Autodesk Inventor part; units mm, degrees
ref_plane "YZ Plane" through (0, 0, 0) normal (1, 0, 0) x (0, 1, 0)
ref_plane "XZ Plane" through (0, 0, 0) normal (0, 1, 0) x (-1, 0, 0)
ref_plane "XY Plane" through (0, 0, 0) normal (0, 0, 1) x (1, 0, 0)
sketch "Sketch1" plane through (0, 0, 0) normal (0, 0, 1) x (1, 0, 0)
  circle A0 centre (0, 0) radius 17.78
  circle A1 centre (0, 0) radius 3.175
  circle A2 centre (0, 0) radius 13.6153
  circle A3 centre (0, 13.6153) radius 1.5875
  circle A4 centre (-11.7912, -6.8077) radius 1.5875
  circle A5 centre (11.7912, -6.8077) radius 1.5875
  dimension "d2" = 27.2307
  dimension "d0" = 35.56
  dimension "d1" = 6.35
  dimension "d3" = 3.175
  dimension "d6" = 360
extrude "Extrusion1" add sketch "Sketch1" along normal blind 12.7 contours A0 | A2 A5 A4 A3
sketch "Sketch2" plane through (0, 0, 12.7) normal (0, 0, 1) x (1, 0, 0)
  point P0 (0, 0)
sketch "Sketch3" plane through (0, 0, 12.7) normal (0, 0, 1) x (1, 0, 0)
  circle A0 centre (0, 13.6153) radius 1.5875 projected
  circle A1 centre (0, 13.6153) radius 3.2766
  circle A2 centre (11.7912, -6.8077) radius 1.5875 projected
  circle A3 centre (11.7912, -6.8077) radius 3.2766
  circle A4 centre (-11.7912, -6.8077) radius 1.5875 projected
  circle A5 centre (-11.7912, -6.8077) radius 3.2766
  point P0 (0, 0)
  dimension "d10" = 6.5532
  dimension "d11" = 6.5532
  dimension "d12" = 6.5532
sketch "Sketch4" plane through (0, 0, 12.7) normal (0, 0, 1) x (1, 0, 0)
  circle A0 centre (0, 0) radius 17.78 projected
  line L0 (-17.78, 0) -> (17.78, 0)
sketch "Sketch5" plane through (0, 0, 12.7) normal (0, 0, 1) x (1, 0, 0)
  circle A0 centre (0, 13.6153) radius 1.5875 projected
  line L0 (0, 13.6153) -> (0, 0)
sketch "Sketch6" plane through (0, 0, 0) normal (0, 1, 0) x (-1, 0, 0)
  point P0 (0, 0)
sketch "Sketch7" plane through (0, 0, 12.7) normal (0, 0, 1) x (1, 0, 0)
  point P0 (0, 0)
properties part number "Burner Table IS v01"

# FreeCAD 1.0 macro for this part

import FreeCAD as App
import Part
import Sketcher
Q = App.Units.Quantity

doc = App.newDocument("Part")
body = doc.addObject("PartDesign::Body", "Body")

# Sketch on XY plane
sketch1 = body.newObject("Sketcher::SketchObject", "Sketch")
sketch1.AttachmentSupport = (doc.getObject("XY_Plane"), [""])
sketch1.MapMode = "FlatFace"
sketch1.addGeometry([
    Part.Circle(App.Vector(0, 0, 0), App.Vector(0, 0, 1), 17.8),  # 0
    Part.Circle(App.Vector(0, 13.6, 0), App.Vector(0, 0, 1), 1.6),  # 1
    Part.Circle(App.Vector(-11.8, -6.8, 0), App.Vector(0, 0, 1), 1.6),  # 2
    Part.Circle(App.Vector(11.8, -6.8, 0), App.Vector(0, 0, 1), 1.6),  # 3
    Part.Circle(App.Vector(0, 0, 0), App.Vector(0, 0, 1), 3.2),  # 4
], False)
sketch1.addConstraint([
    Sketcher.Constraint("Coincident", 0, 3, -1, 1),
    Sketcher.Constraint("Coincident", 4, 3, -1, 1),
    Sketcher.Constraint("Equal", 1, 2),
    Sketcher.Constraint("Equal", 2, 3),
    Sketcher.Constraint("Symmetric", 2, 3, 3, 3, -2),
    Sketcher.Constraint("PointOnObject", 1, 3, -2),
    Sketcher.Constraint("Diameter", 0, Q("1.4 in")),
    Sketcher.Constraint("Diameter", 4, Q("0.25 in")),
    Sketcher.Constraint("Diameter", 1, Q("0.125 in")),
    Sketcher.Constraint("DistanceY", -1, 1, 1, 3, Q("13.6153 mm")),
    Sketcher.Constraint("DistanceX", 2, 3, -1, 1, Q("11.7912 mm")),
    Sketcher.Constraint("DistanceY", 2, 3, -1, 1, Q("6.8077 mm")),
])
pad1 = body.newObject("PartDesign::Pad", "Pad")
pad1.Profile = sketch1
pad1.Length = Q("0.5 in")

doc.recompute()
